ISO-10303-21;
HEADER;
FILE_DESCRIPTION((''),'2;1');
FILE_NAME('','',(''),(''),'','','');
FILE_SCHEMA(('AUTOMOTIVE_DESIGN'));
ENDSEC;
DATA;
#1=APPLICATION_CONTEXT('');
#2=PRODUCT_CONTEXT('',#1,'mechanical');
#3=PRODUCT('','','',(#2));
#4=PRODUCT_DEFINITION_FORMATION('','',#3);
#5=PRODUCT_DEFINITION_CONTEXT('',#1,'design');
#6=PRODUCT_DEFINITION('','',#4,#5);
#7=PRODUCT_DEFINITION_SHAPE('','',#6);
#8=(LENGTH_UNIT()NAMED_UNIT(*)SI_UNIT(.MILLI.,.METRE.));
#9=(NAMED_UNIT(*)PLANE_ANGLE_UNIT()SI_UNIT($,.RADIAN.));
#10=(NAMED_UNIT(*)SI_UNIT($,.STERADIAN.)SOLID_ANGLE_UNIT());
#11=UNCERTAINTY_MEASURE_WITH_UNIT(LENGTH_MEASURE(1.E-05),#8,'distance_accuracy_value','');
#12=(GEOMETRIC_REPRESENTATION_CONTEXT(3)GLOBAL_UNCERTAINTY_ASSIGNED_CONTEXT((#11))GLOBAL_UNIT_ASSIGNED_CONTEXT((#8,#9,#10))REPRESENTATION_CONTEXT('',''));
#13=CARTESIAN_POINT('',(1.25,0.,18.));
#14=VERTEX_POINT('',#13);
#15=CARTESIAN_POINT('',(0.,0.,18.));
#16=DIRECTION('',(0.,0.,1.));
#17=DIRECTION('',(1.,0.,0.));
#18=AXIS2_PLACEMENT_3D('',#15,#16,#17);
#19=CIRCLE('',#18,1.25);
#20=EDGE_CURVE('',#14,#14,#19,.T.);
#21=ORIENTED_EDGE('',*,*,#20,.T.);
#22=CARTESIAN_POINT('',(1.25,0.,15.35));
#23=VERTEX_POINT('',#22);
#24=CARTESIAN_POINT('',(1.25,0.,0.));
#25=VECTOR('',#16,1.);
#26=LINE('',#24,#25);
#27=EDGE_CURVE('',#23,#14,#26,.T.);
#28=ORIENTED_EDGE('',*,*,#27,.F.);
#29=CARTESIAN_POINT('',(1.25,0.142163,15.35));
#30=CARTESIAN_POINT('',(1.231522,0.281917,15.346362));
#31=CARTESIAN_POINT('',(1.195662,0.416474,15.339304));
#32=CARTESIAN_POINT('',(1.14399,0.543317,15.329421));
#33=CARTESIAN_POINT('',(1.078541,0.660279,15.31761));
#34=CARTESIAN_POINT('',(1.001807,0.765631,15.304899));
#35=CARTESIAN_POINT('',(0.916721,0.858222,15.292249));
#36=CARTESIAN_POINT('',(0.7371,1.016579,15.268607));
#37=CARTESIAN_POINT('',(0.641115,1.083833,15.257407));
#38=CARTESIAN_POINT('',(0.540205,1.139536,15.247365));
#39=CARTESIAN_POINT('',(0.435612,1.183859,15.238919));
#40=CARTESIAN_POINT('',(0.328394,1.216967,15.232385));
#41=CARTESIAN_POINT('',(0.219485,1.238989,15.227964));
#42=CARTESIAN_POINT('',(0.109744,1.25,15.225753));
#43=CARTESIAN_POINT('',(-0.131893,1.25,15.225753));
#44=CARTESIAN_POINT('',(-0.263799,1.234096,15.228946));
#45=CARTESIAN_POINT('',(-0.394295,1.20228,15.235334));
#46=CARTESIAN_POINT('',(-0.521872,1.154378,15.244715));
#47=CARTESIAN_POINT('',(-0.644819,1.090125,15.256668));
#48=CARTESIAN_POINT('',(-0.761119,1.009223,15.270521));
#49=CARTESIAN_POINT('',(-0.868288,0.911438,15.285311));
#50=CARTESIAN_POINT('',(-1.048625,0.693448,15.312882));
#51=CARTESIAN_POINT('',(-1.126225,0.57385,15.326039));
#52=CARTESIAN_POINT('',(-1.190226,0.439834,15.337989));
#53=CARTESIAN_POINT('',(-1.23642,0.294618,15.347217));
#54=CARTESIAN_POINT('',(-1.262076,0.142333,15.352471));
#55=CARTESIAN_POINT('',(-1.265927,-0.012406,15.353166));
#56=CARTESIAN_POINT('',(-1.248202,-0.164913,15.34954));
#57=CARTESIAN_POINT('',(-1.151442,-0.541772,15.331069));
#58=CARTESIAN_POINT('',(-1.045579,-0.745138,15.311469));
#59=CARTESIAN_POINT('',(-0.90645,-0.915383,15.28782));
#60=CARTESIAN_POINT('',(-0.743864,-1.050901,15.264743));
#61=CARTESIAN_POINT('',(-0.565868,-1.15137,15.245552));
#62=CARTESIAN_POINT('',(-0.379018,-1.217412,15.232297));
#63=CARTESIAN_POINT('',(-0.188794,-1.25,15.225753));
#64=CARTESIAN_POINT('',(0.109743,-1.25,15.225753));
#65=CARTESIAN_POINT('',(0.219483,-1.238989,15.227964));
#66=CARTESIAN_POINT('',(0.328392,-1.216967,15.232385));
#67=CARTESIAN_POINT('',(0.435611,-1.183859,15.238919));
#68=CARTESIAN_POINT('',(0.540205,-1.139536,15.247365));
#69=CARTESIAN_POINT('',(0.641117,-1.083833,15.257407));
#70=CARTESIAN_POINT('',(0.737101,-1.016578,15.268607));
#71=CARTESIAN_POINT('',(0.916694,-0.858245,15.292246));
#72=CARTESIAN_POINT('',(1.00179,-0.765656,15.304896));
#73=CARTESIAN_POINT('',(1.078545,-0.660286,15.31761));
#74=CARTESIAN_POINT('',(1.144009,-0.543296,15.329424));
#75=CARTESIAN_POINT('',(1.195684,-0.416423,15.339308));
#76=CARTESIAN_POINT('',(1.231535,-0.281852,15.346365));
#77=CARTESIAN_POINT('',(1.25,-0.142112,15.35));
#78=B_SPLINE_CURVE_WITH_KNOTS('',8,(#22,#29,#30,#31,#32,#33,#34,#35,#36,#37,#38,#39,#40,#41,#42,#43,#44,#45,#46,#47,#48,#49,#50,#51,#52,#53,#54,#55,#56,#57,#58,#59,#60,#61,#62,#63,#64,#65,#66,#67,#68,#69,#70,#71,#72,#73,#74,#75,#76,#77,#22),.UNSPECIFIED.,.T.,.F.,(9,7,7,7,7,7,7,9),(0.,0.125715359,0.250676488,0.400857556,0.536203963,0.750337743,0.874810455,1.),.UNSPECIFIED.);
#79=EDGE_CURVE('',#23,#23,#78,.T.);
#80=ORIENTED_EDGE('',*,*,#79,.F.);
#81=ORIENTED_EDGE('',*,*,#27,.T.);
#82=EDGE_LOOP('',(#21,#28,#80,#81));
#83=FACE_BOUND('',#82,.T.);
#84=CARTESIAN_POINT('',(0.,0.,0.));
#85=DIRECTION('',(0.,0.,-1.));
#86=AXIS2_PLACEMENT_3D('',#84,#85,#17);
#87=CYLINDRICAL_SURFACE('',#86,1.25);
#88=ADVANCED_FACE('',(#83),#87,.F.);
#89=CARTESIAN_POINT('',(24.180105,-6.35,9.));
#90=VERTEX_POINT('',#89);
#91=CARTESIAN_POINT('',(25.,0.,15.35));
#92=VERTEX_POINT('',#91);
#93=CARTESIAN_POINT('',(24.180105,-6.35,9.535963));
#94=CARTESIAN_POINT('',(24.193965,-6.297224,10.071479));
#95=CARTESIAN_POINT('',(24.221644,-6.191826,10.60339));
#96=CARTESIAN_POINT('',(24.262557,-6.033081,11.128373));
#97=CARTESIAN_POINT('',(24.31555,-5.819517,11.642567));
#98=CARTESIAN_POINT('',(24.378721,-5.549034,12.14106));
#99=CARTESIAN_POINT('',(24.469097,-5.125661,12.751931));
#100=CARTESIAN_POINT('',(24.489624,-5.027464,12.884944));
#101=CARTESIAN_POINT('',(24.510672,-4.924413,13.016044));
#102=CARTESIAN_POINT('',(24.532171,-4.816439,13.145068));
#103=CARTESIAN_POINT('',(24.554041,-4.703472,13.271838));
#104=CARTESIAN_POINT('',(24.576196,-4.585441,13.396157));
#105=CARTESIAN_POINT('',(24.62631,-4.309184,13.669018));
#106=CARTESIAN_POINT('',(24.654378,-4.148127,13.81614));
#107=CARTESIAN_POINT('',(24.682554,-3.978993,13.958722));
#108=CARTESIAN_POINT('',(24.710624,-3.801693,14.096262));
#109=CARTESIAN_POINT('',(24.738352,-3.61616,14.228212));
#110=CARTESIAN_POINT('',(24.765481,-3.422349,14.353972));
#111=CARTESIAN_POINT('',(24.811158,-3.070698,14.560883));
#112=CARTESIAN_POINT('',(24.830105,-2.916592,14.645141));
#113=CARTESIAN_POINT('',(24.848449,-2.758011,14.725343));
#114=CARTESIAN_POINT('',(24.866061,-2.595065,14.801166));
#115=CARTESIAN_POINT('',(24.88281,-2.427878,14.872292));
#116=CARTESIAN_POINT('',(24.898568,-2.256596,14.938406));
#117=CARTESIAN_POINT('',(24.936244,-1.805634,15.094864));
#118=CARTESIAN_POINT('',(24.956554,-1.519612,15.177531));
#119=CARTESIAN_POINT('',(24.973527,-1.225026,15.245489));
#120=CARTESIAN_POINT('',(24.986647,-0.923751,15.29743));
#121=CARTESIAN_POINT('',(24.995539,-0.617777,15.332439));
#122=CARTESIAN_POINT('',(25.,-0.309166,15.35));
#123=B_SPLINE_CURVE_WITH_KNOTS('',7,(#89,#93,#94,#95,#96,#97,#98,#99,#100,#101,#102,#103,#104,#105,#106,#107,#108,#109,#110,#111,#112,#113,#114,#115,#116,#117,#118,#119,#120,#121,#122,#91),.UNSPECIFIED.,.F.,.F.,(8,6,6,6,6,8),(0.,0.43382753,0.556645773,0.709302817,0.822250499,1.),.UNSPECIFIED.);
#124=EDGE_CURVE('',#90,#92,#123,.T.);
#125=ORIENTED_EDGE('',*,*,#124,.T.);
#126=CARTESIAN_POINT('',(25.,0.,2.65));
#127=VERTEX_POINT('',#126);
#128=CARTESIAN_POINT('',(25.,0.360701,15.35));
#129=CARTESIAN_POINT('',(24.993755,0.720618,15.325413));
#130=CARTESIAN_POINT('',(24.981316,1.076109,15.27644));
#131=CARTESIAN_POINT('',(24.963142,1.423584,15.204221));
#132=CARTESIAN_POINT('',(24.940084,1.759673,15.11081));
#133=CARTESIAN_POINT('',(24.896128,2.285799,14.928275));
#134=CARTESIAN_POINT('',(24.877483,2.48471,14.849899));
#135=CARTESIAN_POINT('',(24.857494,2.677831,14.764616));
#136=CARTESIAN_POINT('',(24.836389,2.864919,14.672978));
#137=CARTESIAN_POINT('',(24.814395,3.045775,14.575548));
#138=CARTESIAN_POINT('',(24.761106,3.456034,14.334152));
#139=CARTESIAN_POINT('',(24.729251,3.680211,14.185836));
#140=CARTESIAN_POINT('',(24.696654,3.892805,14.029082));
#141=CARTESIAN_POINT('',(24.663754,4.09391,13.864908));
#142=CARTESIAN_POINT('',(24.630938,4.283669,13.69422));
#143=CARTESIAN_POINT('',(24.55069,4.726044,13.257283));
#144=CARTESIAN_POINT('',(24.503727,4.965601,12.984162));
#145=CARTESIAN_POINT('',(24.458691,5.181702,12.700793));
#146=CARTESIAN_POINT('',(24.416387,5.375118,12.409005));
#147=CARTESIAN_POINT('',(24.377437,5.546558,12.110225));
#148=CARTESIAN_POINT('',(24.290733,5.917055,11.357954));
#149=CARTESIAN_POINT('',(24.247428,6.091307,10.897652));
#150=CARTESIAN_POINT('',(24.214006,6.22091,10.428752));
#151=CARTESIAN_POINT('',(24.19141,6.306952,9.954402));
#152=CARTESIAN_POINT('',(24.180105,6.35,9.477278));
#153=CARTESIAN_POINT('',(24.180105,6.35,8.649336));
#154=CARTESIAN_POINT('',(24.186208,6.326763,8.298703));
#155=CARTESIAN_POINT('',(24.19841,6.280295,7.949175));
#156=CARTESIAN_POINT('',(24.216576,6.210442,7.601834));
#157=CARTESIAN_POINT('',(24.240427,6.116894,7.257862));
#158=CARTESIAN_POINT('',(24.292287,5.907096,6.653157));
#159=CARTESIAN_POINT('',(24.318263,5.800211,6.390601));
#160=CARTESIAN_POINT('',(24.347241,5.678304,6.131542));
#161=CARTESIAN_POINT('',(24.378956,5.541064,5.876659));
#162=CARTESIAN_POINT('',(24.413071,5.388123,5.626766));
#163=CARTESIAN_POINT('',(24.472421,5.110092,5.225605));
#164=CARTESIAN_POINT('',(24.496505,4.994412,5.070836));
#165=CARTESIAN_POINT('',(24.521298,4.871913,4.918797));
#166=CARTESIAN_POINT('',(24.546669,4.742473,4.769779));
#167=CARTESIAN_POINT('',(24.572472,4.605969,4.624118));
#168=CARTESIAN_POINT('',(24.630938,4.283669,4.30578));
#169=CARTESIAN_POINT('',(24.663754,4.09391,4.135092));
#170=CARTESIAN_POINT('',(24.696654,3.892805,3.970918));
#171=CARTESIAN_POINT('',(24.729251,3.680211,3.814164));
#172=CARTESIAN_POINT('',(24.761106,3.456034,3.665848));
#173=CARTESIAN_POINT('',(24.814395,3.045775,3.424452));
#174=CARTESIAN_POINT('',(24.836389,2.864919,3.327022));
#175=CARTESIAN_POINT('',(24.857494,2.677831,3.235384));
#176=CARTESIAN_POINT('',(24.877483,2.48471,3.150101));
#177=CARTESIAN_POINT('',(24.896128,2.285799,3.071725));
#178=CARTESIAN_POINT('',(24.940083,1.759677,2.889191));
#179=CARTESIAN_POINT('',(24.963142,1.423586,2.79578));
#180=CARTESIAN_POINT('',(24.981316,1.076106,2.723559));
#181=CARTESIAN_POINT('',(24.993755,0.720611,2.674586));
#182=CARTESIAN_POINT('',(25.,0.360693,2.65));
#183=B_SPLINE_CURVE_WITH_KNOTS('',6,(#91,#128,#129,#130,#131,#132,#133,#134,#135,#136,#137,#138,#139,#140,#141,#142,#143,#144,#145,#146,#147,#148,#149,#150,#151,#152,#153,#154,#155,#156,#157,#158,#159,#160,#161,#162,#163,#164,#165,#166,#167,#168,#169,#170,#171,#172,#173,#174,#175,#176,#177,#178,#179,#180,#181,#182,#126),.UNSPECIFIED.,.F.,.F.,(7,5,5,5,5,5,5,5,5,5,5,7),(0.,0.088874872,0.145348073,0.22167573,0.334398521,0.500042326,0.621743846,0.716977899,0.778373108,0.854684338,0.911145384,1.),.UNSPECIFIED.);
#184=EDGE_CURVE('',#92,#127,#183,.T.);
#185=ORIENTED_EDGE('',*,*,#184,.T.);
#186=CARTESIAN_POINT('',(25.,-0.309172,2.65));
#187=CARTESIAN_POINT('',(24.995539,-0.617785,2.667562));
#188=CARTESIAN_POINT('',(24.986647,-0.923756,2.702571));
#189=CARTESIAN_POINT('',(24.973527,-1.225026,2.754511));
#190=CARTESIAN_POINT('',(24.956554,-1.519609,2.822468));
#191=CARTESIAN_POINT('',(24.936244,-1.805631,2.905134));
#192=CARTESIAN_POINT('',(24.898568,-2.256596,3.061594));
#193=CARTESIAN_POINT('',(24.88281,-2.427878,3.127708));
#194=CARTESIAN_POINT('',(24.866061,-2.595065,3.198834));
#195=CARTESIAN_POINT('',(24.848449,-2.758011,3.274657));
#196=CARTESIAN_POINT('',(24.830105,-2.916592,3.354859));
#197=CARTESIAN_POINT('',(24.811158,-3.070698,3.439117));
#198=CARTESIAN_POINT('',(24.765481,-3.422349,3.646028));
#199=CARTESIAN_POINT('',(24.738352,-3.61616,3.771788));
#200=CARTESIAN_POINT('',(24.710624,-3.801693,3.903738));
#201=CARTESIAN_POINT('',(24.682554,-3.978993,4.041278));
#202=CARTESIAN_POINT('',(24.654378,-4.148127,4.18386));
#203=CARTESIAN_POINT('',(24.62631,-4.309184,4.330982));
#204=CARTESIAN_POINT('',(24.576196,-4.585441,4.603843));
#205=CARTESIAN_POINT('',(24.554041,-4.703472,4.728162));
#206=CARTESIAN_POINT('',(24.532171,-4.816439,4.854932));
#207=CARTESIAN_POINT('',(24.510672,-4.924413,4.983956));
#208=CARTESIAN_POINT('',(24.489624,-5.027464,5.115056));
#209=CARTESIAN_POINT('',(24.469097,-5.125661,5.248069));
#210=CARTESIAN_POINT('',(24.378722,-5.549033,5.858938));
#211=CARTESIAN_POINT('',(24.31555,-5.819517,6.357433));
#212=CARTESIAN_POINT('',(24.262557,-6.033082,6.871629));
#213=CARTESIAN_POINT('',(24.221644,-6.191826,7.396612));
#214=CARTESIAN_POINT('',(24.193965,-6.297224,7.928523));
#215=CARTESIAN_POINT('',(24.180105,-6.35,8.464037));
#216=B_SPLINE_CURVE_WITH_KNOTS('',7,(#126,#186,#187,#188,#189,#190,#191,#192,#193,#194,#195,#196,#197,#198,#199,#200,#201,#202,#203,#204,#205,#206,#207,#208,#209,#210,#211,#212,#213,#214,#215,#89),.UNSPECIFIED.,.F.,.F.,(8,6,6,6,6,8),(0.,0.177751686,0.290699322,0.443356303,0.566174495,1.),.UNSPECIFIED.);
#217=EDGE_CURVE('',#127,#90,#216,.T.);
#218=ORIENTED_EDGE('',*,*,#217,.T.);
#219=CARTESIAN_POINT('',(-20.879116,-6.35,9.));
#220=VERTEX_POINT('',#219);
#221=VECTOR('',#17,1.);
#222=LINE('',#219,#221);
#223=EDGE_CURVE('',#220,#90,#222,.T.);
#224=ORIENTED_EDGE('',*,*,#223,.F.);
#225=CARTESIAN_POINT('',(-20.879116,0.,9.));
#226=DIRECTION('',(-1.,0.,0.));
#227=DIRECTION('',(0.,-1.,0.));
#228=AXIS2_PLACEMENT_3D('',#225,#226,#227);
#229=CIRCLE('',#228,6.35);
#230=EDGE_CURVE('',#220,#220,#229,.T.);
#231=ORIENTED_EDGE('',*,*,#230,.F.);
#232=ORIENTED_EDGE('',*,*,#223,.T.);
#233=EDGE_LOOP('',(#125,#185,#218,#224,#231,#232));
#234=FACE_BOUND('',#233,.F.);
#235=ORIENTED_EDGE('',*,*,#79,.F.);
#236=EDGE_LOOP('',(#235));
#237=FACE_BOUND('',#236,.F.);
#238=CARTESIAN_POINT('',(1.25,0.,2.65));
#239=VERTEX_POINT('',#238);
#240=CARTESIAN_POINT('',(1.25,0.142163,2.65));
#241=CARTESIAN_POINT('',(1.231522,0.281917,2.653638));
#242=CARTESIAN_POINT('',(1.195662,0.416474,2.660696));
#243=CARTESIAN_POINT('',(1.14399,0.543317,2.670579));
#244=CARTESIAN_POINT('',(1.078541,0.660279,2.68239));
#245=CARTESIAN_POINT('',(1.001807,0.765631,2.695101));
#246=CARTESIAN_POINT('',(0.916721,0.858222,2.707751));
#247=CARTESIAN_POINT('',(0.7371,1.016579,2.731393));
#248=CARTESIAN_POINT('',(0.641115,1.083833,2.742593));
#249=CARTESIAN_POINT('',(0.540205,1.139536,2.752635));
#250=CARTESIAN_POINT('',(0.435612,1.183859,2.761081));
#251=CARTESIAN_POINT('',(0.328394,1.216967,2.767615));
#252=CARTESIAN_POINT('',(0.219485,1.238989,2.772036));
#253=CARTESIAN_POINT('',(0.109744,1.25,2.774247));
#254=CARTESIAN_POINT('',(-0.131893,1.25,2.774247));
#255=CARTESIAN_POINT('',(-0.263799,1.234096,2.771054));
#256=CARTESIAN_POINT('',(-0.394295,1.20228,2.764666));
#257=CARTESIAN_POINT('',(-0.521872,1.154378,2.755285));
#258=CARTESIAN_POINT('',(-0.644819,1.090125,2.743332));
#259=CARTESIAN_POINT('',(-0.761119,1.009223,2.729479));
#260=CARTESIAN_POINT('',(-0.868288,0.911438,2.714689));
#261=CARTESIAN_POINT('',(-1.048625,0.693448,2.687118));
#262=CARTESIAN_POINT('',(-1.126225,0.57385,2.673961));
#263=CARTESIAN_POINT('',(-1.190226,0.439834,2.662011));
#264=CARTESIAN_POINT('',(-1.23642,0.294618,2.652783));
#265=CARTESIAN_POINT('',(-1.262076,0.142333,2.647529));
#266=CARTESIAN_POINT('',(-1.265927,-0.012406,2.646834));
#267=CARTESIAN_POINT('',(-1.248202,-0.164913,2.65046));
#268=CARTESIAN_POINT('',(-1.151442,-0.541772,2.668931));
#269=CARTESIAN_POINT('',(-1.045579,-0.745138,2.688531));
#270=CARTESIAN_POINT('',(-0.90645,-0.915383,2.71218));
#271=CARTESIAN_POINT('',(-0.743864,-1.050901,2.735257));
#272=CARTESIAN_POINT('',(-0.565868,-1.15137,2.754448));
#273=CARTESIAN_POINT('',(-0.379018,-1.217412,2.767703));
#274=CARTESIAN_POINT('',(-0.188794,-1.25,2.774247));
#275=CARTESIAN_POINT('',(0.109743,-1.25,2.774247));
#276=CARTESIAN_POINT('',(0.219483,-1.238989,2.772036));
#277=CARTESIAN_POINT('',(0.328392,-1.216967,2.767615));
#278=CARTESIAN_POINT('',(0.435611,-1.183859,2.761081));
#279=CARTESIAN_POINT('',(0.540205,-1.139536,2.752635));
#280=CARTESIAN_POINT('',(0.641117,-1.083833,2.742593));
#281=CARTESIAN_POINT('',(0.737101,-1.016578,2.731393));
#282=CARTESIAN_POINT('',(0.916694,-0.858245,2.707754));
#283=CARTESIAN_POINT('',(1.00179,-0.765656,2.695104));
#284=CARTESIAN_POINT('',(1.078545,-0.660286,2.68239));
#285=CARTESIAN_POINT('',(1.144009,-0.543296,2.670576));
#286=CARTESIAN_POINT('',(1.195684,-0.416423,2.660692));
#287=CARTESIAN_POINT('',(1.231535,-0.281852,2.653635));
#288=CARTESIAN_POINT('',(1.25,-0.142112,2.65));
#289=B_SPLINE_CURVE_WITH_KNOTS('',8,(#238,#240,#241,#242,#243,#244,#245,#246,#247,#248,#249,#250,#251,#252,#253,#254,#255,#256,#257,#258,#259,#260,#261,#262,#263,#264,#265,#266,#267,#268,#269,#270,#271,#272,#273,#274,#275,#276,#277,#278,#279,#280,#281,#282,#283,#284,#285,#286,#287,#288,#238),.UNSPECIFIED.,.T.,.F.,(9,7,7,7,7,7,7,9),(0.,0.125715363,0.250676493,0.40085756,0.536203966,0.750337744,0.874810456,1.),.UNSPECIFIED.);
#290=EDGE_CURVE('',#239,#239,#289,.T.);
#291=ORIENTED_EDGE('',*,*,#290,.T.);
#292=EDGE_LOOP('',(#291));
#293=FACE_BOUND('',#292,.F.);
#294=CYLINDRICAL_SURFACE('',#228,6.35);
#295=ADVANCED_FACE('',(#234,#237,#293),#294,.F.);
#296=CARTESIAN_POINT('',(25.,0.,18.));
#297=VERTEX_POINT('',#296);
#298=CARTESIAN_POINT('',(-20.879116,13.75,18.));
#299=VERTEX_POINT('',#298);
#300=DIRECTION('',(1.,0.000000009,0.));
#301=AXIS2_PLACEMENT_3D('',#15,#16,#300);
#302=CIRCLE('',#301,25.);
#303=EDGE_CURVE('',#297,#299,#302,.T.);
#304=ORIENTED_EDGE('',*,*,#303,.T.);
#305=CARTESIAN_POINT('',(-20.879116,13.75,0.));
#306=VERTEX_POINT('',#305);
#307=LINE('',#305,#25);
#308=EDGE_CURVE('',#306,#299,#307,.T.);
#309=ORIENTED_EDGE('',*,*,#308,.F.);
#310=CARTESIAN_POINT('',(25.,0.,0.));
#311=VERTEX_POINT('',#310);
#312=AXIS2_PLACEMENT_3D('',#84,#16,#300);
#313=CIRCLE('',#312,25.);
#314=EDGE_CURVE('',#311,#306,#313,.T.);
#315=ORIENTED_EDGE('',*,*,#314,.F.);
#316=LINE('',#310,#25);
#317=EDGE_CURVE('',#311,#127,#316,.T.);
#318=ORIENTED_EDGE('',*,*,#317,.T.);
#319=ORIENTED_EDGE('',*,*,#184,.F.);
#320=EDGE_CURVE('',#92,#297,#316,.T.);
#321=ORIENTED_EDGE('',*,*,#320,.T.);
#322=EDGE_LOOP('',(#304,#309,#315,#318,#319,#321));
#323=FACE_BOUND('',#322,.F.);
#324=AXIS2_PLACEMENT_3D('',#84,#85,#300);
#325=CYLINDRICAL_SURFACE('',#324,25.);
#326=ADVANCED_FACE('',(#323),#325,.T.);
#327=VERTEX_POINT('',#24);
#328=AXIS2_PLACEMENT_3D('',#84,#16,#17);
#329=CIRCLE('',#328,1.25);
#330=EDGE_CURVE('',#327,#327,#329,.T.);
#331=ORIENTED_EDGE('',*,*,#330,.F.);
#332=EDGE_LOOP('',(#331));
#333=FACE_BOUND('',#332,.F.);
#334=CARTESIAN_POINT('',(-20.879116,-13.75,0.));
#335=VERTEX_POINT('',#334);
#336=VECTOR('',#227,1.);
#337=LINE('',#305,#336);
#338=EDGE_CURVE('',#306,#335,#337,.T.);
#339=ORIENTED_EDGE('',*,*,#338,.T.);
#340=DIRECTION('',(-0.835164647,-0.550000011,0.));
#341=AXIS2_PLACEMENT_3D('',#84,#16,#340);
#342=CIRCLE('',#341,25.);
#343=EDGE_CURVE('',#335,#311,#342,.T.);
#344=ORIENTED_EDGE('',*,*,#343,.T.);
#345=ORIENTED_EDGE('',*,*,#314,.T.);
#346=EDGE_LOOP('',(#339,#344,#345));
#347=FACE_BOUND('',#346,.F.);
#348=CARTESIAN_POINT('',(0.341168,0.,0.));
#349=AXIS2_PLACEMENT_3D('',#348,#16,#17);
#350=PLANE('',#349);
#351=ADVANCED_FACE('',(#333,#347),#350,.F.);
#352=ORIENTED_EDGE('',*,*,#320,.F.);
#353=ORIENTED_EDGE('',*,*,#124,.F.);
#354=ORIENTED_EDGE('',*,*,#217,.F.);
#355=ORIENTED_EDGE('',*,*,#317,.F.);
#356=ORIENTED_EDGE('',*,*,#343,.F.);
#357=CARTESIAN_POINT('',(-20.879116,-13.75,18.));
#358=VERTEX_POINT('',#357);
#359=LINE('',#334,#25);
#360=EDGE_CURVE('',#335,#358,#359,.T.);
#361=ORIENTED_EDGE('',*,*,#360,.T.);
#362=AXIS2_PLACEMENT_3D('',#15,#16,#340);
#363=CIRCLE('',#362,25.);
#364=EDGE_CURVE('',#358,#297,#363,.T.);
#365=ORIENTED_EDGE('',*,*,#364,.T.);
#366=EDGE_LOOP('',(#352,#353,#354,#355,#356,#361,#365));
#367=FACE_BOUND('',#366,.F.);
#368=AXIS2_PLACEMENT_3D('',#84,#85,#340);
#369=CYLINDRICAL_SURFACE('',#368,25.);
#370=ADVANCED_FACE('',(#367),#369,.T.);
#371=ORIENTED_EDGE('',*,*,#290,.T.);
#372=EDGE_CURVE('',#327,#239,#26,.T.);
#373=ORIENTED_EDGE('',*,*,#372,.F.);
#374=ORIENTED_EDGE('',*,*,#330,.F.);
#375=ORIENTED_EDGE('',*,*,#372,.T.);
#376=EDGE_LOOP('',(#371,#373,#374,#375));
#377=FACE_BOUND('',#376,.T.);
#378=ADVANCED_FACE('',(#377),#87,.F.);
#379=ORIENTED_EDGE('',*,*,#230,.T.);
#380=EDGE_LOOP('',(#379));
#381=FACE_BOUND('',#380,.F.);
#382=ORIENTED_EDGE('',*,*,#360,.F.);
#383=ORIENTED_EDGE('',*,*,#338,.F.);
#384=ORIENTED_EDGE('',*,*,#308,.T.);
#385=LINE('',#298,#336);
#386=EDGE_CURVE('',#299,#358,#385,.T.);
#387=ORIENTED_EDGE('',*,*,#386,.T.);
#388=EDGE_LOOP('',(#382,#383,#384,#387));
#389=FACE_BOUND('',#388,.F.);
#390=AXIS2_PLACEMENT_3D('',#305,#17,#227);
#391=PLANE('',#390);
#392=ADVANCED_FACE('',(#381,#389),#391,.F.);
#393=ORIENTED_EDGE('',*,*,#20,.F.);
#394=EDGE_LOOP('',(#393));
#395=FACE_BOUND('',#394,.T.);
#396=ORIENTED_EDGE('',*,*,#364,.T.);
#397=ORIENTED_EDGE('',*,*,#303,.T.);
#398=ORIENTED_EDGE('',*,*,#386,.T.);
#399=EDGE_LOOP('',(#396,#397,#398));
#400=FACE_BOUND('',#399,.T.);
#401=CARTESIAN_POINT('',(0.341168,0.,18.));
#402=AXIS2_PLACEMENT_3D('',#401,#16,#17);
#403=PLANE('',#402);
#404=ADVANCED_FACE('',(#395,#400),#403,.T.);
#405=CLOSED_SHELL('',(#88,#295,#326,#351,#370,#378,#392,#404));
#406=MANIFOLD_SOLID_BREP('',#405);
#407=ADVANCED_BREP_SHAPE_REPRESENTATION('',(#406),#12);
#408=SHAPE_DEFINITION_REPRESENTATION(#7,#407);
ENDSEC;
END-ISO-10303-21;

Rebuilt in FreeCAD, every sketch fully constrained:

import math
import FreeCAD as App
import Part
import Sketcher

V = App.Vector

doc = App.newDocument("Part")
body = doc.addObject("PartDesign::Body", "Body")

# Sketch on XY plane
sketch1 = body.newObject("Sketcher::SketchObject", "Sketch")
sketch1.AttachmentSupport = (doc.getObject("XY_Plane"), [""])
sketch1.MapMode = "FlatFace"
sketch1.addGeometry(Part.ArcOfCircle(Part.Circle(V(0, 0, 0), V(0, 0, 1), 25), math.radians(-146.632986), math.radians(0)), False)
sketch1.addGeometry(Part.ArcOfCircle(Part.Circle(V(0, 0, 0), V(0, 0, 1), 25), math.radians(0), math.radians(146.632986)), False)
sketch1.addGeometry(Part.LineSegment(V(-20.879116, 13.75, 0), V(-20.879116, -13.75, 0)), False)
sketch1.addGeometry(Part.Circle(V(0, 0, 0), V(0, 0, 1), 1.25), False)
sketch1.addConstraint(Sketcher.Constraint("Tangent", 0, 2, 1, 1))
sketch1.addConstraint(Sketcher.Constraint("Coincident", 1, 2, 2, 1))
sketch1.addConstraint(Sketcher.Constraint("Coincident", 2, 2, 0, 1))
sketch1.addConstraint(Sketcher.Constraint("Vertical", 2))
sketch1.addConstraint(Sketcher.Constraint("Coincident", 0, 3, -1, 1))
sketch1.addConstraint(Sketcher.Constraint("Coincident", 3, 3, -1, 1))
sketch1.addConstraint(Sketcher.Constraint("Equal", 0, 1))
sketch1.addConstraint(Sketcher.Constraint("PointOnObject", 0, 2, -1))
sketch1.addConstraint(Sketcher.Constraint("Radius", 0, 25.0))
sketch1.addConstraint(Sketcher.Constraint("Diameter", 3, 2.5))
sketch1.addConstraint(Sketcher.Constraint("DistanceY", 2, 2, 2, 1, 27.5))
pad1 = body.newObject("PartDesign::Pad", "Pad")
pad1.Profile = sketch1
pad1.Length = 18

# Sketch on YZ plane
sketch2 = body.newObject("Sketcher::SketchObject", "Sketch001")
sketch2.AttachmentSupport = (doc.getObject("YZ_Plane"), [""])
sketch2.MapMode = "FlatFace"
sketch2.AttachmentOffset = App.Placement(V(0, 0, -20.879116), App.Rotation())
sketch2.addGeometry(Part.Circle(V(0, 9, 0), V(0, 0, 1), 6.35), False)
sketch2.addConstraint(Sketcher.Constraint("PointOnObject", 0, 3, -2))
sketch2.addConstraint(Sketcher.Constraint("Diameter", 0, 12.7))
sketch2.addConstraint(Sketcher.Constraint("DistanceY", -1, 1, 0, 3, 9.0))
pocket1 = body.newObject("PartDesign::Pocket", "Pocket")
pocket1.Profile = sketch2
pocket1.Length = 59.8157
pocket1.Reversed = True

doc.recompute()
